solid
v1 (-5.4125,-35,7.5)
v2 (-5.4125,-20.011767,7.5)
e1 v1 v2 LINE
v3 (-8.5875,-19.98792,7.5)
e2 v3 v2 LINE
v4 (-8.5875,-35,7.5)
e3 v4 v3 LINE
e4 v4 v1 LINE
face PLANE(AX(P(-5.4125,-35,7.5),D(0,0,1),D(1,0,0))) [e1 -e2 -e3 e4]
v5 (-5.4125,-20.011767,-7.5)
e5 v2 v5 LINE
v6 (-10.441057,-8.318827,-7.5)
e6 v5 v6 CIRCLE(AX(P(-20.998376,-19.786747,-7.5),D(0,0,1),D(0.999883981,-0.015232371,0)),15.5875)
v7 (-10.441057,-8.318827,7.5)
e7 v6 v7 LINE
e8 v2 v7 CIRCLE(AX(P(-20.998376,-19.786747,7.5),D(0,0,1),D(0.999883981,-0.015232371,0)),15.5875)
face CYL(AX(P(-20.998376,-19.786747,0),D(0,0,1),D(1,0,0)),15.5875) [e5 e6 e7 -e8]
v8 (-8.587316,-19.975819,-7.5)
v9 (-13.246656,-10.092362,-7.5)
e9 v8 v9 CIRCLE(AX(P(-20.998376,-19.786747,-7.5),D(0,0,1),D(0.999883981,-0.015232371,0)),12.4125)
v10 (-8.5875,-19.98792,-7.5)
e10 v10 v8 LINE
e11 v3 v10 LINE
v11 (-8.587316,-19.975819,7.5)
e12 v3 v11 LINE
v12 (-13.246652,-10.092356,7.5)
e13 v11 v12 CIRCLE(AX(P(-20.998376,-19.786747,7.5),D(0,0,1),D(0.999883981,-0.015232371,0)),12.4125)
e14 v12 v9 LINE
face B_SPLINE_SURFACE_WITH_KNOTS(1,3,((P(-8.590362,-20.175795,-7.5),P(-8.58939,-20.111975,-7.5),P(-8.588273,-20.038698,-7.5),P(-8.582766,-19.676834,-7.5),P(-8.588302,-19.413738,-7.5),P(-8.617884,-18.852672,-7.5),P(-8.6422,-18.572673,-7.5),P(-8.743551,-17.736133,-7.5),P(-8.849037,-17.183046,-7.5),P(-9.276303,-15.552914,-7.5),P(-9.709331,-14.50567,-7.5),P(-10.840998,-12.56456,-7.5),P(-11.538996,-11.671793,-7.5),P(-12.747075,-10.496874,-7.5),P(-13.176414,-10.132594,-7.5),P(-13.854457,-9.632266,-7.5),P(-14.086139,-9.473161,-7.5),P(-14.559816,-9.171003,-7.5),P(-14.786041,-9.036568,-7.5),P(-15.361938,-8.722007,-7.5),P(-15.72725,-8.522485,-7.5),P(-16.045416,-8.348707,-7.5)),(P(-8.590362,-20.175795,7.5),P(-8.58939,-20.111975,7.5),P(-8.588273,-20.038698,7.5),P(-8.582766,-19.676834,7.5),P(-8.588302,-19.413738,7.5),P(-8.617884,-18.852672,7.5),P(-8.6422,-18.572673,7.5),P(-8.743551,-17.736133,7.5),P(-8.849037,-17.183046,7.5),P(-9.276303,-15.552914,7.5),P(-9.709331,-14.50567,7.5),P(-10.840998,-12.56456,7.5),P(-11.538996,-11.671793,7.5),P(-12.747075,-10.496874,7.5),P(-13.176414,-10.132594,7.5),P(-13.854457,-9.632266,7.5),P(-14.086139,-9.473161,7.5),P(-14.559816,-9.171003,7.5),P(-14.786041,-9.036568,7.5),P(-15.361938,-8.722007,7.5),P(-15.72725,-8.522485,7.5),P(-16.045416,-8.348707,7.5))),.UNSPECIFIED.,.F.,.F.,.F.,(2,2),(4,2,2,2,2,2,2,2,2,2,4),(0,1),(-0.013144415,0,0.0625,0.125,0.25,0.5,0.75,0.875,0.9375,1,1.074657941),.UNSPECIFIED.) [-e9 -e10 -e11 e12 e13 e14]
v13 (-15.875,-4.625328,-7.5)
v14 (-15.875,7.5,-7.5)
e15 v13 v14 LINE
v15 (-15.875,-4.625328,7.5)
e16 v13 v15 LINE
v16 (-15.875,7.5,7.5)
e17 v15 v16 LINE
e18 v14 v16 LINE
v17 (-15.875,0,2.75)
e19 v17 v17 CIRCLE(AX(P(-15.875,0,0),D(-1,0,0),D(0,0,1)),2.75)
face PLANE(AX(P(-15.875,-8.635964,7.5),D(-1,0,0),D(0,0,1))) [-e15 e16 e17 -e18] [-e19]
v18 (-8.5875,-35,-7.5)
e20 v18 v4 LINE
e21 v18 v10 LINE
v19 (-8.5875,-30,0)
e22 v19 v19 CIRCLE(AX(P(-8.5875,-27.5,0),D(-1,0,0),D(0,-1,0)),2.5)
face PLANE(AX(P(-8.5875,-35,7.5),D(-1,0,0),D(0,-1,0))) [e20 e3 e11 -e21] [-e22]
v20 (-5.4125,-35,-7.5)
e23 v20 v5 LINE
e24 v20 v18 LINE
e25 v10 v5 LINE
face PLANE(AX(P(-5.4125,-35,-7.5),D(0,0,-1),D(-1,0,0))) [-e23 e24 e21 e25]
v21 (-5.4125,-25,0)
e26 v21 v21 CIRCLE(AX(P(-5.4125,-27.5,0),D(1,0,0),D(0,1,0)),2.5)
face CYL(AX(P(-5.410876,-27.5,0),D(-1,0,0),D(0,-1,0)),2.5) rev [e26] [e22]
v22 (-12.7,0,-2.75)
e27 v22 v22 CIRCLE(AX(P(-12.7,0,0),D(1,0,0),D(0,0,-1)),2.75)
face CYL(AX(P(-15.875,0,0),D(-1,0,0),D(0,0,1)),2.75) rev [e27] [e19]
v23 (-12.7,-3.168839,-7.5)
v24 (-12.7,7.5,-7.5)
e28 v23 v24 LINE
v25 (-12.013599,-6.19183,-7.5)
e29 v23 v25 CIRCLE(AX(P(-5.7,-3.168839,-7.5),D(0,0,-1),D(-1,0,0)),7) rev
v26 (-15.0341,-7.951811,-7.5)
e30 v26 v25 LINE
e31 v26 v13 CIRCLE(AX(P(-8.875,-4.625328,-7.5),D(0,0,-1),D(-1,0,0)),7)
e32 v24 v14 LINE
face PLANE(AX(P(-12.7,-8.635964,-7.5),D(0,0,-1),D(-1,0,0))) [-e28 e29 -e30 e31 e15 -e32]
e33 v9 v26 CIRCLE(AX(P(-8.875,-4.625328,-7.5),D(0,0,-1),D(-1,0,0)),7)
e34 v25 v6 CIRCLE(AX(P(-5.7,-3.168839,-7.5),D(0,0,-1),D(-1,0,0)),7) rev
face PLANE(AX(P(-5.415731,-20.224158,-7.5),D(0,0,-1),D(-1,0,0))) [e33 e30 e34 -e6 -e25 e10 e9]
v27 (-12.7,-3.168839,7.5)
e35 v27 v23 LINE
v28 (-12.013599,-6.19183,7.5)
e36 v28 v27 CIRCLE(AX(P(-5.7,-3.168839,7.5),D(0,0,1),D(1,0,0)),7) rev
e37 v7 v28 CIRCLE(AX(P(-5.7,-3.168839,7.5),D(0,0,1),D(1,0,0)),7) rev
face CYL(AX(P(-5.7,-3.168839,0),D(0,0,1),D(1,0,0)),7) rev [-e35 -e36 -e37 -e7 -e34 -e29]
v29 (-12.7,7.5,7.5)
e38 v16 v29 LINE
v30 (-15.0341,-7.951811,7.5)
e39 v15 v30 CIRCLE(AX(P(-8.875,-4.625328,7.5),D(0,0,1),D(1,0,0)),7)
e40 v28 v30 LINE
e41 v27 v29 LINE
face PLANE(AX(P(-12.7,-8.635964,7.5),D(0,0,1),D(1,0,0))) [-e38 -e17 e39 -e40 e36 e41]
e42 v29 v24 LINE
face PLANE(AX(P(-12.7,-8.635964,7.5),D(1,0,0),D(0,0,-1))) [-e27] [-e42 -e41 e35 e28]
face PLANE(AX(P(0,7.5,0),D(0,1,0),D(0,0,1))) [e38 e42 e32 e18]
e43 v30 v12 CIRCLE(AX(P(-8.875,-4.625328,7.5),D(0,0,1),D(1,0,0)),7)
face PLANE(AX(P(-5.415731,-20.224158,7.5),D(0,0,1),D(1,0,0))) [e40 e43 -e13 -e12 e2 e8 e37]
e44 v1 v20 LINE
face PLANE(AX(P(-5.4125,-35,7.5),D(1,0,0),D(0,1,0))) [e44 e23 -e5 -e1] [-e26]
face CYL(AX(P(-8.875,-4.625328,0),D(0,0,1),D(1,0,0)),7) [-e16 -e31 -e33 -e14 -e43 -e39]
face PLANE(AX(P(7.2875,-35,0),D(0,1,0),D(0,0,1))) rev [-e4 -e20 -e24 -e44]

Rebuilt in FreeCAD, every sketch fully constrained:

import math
import FreeCAD as App
import Part
import Sketcher
Q = App.Units.Quantity


def edges_at(feature, points):
    """Names of the edges that pass closest to the given points."""
    edges = feature.Shape.Edges
    near = lambda p: min(range(len(edges)), key=lambda i: edges[i].distToShape(Part.Vertex(*p))[0])
    return sorted({f"Edge{near(p) + 1}" for p in points})


def add_polygon(sketch, points):
    """Adds a closed chain of lines whose ends are joined by coincident constraints."""
    first, n = sketch.GeometryCount, len(points)
    for a, b in zip(points, points[1:] + points[:1]):
        sketch.addGeometry(Part.LineSegment(App.Vector(*a, 0), App.Vector(*b, 0)), False)
    for i in range(n):
        sketch.addConstraint(Sketcher.Constraint("Coincident", first + i, 2, first + (i + 1) % n, 1))

doc = App.newDocument("Part")
params = doc.addObject("Spreadsheet::Sheet", "Params")
for row, (alias, value) in enumerate([
    ("sketch1_height", "15 mm"),
    ("sketch2_radius", "14 mm"),
    ("sketch2_height", "15 mm"),
    ("fillet_radius", "7 mm"),
    ("sketch3_diameter", "5.5 mm"),
    ("hole_diameter", "5.5 mm"),
    ("sketch4_diameter", "5 mm"),
], start=1):
    params.set(f"A{row}", alias)
    params.set(f"B{row}", "=" + value)
    params.setAlias(f"B{row}", alias)

body = doc.addObject("PartDesign::Body", "Body")

# Sketch on XZ plane
sketch1 = body.newObject("Sketcher::SketchObject", "Sketch")
sketch1.AttachmentSupport = (doc.getObject("XZ_Plane"), [""])
sketch1.MapMode = "FlatFace"
add_polygon(sketch1, [(-15.9, 7.5), (-12.7, 7.5), (-12.7, -7.5), (-15.9, -7.5)])  # lines 0-3
sketch1.addConstraint([
    Sketcher.Constraint("Horizontal", 0),
    Sketcher.Constraint("Vertical", 1),
    Sketcher.Constraint("Horizontal", 2),
    Sketcher.Constraint("Vertical", 3),
    Sketcher.Constraint("DistanceY", 1, 2, 1, 1, Q("15 mm")),
    Sketcher.Constraint("DistanceX", 0, 2, -1, 1, Q("12.7 mm")),
    Sketcher.Constraint("DistanceY", -1, 1, 0, 2, Q("7.5 mm")),
    Sketcher.Constraint("DistanceX", 0, 1, 0, 2, Q("3.175 mm")),
])
sketch1.setExpression("Constraints[8]", "Params.sketch1_height")

# Sketch on XY plane
sketch2 = body.newObject("Sketcher::SketchObject", "Sketch001")
sketch2.AttachmentSupport = (doc.getObject("XY_Plane"), [""])
sketch2.MapMode = "FlatFace"
sketch2.addGeometry([
    Part.LineSegment(App.Vector(-14, 8, 0), App.Vector(-14, -8, 0)),
    Part.ArcOfCircle(Part.Circle(App.Vector(-21, -20, 0), App.Vector(0, 0, 1), 14), math.radians(-1), math.radians(61)),
    Part.LineSegment(App.Vector(-7, -20, 0), App.Vector(-7, -35, 0)),
], False)
sketch2.addConstraint([
    Sketcher.Constraint("Coincident", 0, 2, 1, 2),
    Sketcher.Constraint("Coincident", 1, 1, 2, 1),
    Sketcher.Constraint("Vertical", 0),
    Sketcher.Constraint("Vertical", 2),
    Sketcher.Constraint("Equal", 0, 2),
    Sketcher.Constraint("Radius", 1, Q("14 mm")),
    Sketcher.Constraint("DistanceY", 0, 2, 0, 1, Q("15 mm")),
    Sketcher.Constraint("DistanceX", 1, 1, -1, 1, Q("7 mm")),
    Sketcher.Constraint("DistanceY", 1, 1, -1, 1, Q("20 mm")),
    Sketcher.Constraint("DistanceY", -1, 1, 0, 1, Q("7.5 mm")),
    Sketcher.Constraint("DistanceX", 0, 1, -1, 1, Q("14.2875 mm")),
])
sketch2.setExpression("Constraints[5]", "Params.sketch2_radius")
sketch2.setExpression("Constraints[6]", "Params.sketch2_height")
doc.recompute()

additivepipe = body.newObject("PartDesign::AdditivePipe", "AdditivePipe")
additivepipe.Profile = sketch1
additivepipe.Spine = (sketch2, ["Edge1", "Edge2", "Edge3"])
additivepipe.Transition = "Right corner"
doc.recompute()

fillet = body.newObject("PartDesign::Fillet", "Fillet")
fillet.Base = (additivepipe, edges_at(additivepipe, [(-15.875, -8.442, 0), (-12.7, -6.592, 0)]))
fillet.setExpression("Radius", "Params.fillet_radius")

# Sketch on YZ plane
sketch3 = body.newObject("Sketcher::SketchObject", "Sketch002")
sketch3.AttachmentSupport = (doc.getObject("YZ_Plane"), [""])
sketch3.MapMode = "FlatFace"
sketch3.AttachmentOffset = App.Placement(App.Vector(0, 0, -15.875), App.Rotation())
sketch3.addGeometry(Part.Circle(App.Vector(0, 0, 0), App.Vector(0, 0, 1), 2.8), False)
sketch3.addConstraint([
    Sketcher.Constraint("Coincident", 0, 3, -1, 1),
    Sketcher.Constraint("Diameter", 0, Q("5.5 mm")),
])
sketch3.setExpression("Constraints[1]", "Params.sketch3_diameter")
doc.recompute()
hole = body.newObject("PartDesign::Hole", "Hole")
hole.Profile = sketch3
hole.ThreadType = "None"
hole.setExpression("Diameter", "Params.hole_diameter")
hole.DepthType = "ThroughAll"
hole.Reversed = True

# Sketch on YZ plane
sketch4 = body.newObject("Sketcher::SketchObject", "Sketch003")
sketch4.AttachmentSupport = (doc.getObject("YZ_Plane"), [""])
sketch4.MapMode = "FlatFace"
sketch4.AttachmentOffset = App.Placement(App.Vector(0, 0, -8.5875), App.Rotation())
sketch4.addGeometry(Part.Circle(App.Vector(-27.5, 0, 0), App.Vector(0, 0, 1), 2.5), False)
sketch4.addConstraint([
    Sketcher.Constraint("PointOnObject", 0, 3, -1),
    Sketcher.Constraint("Diameter", 0, Q("5 mm")),
    Sketcher.Constraint("DistanceX", 0, 3, -1, 1, Q("27.5 mm")),
])
sketch4.setExpression("Constraints[1]", "Params.sketch4_diameter")
pocket1 = body.newObject("PartDesign::Pocket", "Pocket")
pocket1.Profile = sketch4
pocket1.Type = "ThroughAll"
pocket1.Midplane = True

doc.recompute()
